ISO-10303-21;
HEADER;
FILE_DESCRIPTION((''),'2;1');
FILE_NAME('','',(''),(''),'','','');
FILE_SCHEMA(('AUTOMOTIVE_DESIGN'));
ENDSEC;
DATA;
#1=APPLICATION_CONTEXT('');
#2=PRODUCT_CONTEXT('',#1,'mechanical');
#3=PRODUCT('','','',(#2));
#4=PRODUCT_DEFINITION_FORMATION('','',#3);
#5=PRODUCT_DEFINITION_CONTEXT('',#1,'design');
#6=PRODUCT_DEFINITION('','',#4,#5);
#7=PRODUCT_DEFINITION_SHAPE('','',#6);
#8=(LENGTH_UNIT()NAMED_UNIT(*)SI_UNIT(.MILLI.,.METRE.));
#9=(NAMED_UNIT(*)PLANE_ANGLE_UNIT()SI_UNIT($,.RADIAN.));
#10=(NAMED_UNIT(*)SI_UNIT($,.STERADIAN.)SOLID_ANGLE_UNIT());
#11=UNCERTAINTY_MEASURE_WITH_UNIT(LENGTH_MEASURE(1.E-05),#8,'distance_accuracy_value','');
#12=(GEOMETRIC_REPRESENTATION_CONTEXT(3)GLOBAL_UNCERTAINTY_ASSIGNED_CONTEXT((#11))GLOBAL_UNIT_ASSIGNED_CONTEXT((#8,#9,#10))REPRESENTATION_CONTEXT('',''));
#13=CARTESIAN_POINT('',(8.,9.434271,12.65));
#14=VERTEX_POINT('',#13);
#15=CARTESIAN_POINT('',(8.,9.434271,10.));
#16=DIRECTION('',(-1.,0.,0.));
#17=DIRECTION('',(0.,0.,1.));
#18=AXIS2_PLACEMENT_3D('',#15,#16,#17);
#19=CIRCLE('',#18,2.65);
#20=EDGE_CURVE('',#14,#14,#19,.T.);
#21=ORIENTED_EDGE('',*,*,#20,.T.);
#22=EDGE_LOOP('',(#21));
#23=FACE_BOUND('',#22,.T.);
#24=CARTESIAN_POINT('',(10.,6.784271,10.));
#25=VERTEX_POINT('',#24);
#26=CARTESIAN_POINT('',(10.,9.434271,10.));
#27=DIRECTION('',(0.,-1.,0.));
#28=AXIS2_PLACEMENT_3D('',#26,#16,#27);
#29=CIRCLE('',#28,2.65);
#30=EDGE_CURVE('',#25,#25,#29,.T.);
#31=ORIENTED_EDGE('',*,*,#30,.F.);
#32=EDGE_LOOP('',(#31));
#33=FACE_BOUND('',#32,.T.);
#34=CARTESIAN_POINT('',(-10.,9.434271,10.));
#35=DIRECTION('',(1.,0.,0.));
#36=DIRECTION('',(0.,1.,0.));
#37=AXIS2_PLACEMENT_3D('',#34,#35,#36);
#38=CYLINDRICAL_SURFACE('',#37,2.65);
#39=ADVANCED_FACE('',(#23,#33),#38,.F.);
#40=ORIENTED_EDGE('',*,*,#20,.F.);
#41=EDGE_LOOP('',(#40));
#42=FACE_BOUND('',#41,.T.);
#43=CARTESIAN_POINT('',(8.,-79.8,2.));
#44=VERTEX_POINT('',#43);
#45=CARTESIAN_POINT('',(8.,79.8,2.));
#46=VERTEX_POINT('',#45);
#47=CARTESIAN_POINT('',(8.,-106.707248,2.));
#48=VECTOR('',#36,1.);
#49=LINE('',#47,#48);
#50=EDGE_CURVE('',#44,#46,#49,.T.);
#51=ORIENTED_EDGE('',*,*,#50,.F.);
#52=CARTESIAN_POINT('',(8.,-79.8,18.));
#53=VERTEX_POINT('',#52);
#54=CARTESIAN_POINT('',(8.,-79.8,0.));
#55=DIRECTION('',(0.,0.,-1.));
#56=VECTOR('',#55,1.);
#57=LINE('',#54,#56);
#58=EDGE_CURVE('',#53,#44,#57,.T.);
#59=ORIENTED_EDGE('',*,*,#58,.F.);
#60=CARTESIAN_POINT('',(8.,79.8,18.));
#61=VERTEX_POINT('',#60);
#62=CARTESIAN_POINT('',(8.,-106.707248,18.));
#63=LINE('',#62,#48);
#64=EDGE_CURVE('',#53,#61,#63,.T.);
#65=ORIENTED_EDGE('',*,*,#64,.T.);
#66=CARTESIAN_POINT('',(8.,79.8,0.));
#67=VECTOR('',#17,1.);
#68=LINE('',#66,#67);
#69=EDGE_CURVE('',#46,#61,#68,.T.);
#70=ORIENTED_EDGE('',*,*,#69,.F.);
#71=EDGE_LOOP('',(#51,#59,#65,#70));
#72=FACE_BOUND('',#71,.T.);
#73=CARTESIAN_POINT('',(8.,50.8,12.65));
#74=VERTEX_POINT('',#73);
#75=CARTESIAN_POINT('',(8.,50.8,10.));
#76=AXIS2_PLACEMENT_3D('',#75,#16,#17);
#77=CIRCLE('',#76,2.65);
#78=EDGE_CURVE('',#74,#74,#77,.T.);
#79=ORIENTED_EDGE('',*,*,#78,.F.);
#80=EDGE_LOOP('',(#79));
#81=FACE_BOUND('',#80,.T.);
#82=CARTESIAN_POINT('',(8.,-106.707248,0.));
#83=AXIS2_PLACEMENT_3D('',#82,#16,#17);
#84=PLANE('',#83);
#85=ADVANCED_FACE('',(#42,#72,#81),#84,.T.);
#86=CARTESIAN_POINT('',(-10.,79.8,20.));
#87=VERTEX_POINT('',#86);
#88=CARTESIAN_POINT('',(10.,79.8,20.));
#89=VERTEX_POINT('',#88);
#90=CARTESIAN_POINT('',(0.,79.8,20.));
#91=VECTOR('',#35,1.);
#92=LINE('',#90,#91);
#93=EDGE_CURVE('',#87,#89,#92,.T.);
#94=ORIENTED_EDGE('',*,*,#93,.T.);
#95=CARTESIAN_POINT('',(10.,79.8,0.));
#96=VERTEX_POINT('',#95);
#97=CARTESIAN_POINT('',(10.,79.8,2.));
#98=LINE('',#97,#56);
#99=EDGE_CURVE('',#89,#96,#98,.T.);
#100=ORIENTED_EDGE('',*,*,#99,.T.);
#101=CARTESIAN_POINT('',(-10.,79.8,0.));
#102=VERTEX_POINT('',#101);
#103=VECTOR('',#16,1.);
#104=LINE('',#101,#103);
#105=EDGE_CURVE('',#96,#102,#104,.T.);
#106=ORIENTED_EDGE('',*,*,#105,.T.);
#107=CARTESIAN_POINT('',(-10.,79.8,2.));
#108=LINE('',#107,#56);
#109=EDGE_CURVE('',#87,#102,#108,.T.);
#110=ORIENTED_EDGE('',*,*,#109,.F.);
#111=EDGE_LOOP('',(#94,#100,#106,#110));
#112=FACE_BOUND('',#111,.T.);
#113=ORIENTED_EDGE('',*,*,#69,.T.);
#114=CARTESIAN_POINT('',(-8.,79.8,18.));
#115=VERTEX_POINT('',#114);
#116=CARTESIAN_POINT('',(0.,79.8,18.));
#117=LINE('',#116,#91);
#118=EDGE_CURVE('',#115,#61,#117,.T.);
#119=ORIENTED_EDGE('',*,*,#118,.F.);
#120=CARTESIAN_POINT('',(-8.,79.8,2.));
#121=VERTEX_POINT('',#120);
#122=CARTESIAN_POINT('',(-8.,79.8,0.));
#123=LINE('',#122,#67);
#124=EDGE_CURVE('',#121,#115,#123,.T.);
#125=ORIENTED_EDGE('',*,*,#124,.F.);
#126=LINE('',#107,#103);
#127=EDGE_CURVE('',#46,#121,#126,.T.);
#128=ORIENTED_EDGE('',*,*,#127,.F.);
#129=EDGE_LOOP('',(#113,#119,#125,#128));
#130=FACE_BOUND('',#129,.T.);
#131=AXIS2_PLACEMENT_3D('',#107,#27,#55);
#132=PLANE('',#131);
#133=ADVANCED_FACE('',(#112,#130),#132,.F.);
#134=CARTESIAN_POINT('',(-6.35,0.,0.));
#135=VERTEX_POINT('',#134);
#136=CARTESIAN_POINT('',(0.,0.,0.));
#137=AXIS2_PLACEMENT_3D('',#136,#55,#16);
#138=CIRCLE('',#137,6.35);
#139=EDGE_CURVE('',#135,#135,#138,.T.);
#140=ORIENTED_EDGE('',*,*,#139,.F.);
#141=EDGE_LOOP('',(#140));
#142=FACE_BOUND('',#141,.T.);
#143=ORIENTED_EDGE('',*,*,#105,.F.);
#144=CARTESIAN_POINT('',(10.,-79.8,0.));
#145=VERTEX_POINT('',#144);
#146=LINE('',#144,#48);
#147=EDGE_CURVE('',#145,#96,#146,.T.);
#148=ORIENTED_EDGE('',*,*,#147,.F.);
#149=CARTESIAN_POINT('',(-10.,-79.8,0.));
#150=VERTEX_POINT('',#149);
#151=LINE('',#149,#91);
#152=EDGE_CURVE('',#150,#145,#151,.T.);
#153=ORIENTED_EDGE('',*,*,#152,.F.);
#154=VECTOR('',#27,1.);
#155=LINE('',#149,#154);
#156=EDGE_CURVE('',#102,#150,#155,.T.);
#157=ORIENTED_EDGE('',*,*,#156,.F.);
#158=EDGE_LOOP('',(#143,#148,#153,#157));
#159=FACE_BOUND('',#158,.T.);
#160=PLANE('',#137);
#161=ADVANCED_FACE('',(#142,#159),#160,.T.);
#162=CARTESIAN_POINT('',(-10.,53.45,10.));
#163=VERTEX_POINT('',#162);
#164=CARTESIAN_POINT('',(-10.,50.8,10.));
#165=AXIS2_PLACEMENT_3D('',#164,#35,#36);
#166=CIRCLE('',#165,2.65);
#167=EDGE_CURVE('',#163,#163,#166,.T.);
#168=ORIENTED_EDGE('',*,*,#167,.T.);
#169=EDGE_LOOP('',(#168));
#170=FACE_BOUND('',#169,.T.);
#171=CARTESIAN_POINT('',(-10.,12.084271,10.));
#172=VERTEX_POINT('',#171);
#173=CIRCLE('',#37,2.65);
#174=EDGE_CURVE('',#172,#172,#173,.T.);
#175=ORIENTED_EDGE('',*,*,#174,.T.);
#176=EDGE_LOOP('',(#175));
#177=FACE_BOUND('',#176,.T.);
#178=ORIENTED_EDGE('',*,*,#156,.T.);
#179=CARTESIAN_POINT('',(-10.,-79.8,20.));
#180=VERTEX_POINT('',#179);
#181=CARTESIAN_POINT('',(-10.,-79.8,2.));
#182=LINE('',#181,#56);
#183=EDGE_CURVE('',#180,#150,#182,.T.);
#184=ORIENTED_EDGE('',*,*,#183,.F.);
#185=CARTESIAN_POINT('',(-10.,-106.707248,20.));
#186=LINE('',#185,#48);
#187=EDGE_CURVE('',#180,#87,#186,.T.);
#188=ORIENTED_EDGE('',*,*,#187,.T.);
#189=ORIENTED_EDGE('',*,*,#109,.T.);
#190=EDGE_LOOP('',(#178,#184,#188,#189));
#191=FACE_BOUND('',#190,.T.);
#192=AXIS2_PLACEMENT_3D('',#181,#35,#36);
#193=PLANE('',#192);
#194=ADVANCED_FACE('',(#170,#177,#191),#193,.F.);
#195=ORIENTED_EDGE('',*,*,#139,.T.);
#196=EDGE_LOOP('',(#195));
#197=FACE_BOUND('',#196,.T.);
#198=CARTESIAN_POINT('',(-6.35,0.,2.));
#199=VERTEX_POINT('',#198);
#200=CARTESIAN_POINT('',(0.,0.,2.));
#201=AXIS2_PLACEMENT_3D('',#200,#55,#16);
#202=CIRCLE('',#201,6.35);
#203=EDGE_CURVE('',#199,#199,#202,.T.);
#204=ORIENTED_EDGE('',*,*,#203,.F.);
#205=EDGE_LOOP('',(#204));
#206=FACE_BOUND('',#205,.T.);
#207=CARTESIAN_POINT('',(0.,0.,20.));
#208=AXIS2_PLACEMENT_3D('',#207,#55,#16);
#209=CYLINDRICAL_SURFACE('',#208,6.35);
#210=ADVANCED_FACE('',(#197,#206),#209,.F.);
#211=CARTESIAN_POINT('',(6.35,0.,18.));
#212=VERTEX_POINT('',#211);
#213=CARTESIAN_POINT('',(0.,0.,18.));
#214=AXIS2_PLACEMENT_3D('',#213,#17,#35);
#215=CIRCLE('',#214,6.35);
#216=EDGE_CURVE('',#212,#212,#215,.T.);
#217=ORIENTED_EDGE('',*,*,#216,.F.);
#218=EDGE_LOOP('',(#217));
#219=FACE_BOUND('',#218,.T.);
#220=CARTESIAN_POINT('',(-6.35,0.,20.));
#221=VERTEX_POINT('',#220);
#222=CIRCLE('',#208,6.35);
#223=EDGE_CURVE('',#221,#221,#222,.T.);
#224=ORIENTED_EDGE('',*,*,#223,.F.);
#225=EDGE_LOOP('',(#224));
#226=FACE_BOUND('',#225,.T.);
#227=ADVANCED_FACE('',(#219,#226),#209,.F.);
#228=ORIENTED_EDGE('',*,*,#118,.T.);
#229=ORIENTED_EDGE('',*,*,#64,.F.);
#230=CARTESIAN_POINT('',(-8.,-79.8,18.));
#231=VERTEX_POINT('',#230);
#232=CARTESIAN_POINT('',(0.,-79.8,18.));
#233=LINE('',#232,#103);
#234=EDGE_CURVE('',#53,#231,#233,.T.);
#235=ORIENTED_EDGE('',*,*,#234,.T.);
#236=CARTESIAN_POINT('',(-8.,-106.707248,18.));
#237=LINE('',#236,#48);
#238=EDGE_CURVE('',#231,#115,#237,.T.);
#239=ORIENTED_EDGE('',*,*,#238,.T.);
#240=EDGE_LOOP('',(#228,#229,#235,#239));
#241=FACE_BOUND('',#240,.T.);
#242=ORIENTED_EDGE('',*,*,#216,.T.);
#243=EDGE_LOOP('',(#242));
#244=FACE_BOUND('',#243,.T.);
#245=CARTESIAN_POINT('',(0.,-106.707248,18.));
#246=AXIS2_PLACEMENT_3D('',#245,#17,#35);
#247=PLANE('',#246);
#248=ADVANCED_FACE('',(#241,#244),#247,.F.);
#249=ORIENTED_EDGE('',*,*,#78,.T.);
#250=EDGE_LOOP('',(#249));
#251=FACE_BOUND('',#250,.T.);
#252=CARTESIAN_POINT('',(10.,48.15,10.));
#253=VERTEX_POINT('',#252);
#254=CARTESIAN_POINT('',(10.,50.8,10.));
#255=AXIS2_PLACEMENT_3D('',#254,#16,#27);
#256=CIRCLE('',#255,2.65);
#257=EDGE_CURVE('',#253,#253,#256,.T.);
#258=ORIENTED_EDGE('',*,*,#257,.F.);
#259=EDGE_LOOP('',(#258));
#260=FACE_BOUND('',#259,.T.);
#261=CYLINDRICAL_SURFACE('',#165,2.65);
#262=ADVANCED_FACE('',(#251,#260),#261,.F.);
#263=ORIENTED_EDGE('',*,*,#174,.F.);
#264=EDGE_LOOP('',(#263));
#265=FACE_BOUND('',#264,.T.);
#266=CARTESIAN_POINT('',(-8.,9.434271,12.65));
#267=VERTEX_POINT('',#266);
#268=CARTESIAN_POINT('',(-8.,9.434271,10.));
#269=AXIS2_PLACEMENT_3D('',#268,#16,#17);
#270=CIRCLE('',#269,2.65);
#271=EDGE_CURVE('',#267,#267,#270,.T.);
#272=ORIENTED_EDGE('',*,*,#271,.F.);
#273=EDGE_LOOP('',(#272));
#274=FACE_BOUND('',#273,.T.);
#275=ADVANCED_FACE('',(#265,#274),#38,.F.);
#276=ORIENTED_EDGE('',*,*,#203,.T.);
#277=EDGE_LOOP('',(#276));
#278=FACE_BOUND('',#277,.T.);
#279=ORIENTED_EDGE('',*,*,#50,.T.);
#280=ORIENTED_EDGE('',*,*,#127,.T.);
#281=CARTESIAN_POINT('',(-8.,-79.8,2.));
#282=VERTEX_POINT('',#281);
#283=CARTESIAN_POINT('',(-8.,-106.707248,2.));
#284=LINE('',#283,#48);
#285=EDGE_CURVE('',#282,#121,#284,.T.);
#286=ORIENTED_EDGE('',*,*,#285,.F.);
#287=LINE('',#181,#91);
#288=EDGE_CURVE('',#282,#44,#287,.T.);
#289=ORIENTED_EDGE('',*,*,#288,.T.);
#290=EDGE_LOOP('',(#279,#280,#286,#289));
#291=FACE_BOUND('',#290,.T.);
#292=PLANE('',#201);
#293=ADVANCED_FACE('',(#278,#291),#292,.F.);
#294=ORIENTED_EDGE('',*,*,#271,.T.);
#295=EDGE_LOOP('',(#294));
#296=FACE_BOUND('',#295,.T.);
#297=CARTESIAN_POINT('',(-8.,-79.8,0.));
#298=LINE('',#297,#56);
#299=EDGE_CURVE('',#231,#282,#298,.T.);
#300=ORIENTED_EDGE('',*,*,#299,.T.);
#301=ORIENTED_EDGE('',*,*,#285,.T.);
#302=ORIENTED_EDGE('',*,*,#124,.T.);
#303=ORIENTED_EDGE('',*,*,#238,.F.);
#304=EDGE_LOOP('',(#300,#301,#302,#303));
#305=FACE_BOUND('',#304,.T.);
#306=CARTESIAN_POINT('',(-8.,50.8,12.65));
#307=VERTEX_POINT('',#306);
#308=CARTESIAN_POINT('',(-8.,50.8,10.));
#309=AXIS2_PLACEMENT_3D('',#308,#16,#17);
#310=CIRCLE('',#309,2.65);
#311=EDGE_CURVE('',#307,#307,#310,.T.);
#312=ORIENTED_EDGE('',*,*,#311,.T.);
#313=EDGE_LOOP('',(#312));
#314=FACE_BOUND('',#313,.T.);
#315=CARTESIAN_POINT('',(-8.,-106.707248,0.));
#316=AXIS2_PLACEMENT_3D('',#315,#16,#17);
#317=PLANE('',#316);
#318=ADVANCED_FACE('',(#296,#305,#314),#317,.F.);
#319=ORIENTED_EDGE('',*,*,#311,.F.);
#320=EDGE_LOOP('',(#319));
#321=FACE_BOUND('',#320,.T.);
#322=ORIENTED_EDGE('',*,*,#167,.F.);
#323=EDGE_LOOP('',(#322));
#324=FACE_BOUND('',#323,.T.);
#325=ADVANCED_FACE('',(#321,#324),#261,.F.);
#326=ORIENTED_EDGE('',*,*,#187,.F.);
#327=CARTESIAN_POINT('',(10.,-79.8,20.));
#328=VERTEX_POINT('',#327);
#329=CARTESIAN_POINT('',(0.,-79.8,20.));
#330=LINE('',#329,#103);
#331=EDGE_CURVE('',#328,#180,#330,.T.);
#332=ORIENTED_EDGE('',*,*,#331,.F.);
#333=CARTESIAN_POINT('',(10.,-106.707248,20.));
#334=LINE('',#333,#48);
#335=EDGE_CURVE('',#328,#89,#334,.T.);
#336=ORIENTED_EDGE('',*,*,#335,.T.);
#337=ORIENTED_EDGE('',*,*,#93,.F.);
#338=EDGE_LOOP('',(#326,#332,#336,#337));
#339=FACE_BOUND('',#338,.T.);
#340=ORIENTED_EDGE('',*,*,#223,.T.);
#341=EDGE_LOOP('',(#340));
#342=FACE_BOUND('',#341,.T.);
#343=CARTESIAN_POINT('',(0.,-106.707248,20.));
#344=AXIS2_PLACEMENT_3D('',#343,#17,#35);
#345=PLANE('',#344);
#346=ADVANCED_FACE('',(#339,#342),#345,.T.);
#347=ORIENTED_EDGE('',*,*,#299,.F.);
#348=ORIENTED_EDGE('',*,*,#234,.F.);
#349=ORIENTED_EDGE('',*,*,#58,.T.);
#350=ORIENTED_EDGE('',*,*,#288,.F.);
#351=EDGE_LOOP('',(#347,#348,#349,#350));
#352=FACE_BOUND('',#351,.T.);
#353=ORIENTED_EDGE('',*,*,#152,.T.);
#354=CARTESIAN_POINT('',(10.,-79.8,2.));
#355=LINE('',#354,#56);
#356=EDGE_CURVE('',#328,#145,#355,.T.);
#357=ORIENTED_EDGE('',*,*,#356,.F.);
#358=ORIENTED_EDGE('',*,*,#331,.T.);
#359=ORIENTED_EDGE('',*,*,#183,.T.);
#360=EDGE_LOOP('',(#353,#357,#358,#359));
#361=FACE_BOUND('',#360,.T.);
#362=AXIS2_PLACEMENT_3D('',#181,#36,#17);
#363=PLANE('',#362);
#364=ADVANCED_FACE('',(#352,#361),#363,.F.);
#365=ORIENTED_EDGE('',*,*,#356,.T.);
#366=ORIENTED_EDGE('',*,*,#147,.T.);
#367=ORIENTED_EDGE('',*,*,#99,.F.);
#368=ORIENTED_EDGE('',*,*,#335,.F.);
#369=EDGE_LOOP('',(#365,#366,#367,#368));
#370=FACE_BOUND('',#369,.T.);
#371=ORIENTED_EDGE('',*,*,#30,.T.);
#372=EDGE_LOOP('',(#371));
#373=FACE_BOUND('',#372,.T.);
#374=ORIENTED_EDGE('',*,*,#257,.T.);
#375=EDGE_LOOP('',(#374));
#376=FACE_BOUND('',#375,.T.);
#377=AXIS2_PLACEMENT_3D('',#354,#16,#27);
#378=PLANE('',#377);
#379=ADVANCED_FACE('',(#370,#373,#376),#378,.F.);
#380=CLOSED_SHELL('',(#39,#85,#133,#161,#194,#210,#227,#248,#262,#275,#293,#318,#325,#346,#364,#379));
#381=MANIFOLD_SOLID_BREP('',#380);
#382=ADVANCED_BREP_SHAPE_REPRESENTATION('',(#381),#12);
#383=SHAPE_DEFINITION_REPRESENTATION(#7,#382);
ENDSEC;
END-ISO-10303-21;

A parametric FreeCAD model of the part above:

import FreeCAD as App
import Part
import Sketcher

V = App.Vector

doc = App.newDocument("Part")
body = doc.addObject("PartDesign::Body", "Body")

sketch1 = doc.addObject("Sketcher::SketchObject", "Sketch")
body.addObject(sketch1)
sketch1.AttachmentSupport = (doc.XY_Plane, [""])
sketch1.MapMode = "FlatFace"
sketch1.addGeometry(Part.LineSegment(V(-10, 80, 0), V(-10, -80, 0)), False)
sketch1.addGeometry(Part.LineSegment(V(-10, -80, 0), V(10, -80, 0)), False)
sketch1.addGeometry(Part.LineSegment(V(10, -80, 0), V(10, 80, 0)), False)
sketch1.addGeometry(Part.LineSegment(V(10, 80, 0), V(-10, 80, 0)), False)
sketch1.addConstraint(Sketcher.Constraint("Coincident", 0, 2, 1, 1))
sketch1.addConstraint(Sketcher.Constraint("Coincident", 1, 2, 2, 1))
sketch1.addConstraint(Sketcher.Constraint("Coincident", 2, 2, 3, 1))
sketch1.addConstraint(Sketcher.Constraint("Coincident", 3, 2, 0, 1))
sketch1.addConstraint(Sketcher.Constraint("Vertical", 0))
sketch1.addConstraint(Sketcher.Constraint("Horizontal", 1))
sketch1.addConstraint(Sketcher.Constraint("Vertical", 2))
sketch1.addConstraint(Sketcher.Constraint("Horizontal", 3))
sketch1.addConstraint(Sketcher.Constraint("Symmetric", 0, 2, 2, 2, -1, 1))
sketch1.addConstraint(Sketcher.Constraint("DistanceX", 1, 1, 1, 2, 20.0))
sketch1.addConstraint(Sketcher.Constraint("DistanceY", 0, 2, 0, 1, 159.6))
pad1 = doc.addObject("PartDesign::Pad", "Pad")
body.addObject(pad1)
pad1.Profile = sketch1
pad1.Length = 2

sketch2 = doc.addObject("Sketcher::SketchObject", "Sketch001")
body.addObject(sketch2)
sketch2.AttachmentSupport = (doc.XZ_Plane, [""])
sketch2.MapMode = "FlatFace"
sketch2.AttachmentOffset = App.Placement(V(0, 0, -79.8), App.Rotation())
sketch2.addGeometry(Part.LineSegment(V(-8, 2, 0), V(-10, 2, 0)), False)
sketch2.addGeometry(Part.LineSegment(V(-10, 2, 0), V(-10, 20, 0)), False)
sketch2.addGeometry(Part.LineSegment(V(-10, 20, 0), V(10, 20, 0)), False)
sketch2.addGeometry(Part.LineSegment(V(10, 20, 0), V(10, 2, 0)), False)
sketch2.addGeometry(Part.LineSegment(V(10, 2, 0), V(8, 2, 0)), False)
sketch2.addGeometry(Part.LineSegment(V(8, 2, 0), V(8, 18, 0)), False)
sketch2.addGeometry(Part.LineSegment(V(8, 18, 0), V(-8, 18, 0)), False)
sketch2.addGeometry(Part.LineSegment(V(-8, 18, 0), V(-8, 2, 0)), False)
sketch2.addConstraint(Sketcher.Constraint("Coincident", 0, 2, 1, 1))
sketch2.addConstraint(Sketcher.Constraint("Coincident", 1, 2, 2, 1))
sketch2.addConstraint(Sketcher.Constraint("Coincident", 2, 2, 3, 1))
sketch2.addConstraint(Sketcher.Constraint("Coincident", 3, 2, 4, 1))
sketch2.addConstraint(Sketcher.Constraint("Coincident", 4, 2, 5, 1))
sketch2.addConstraint(Sketcher.Constraint("Coincident", 5, 2, 6, 1))
sketch2.addConstraint(Sketcher.Constraint("Coincident", 6, 2, 7, 1))
sketch2.addConstraint(Sketcher.Constraint("Coincident", 7, 2, 0, 1))
sketch2.addConstraint(Sketcher.Constraint("Horizontal", 0))
sketch2.addConstraint(Sketcher.Constraint("Vertical", 1))
sketch2.addConstraint(Sketcher.Constraint("Horizontal", 2))
sketch2.addConstraint(Sketcher.Constraint("Vertical", 3))
sketch2.addConstraint(Sketcher.Constraint("Horizontal", 4))
sketch2.addConstraint(Sketcher.Constraint("Vertical", 5))
sketch2.addConstraint(Sketcher.Constraint("Horizontal", 6))
sketch2.addConstraint(Sketcher.Constraint("Vertical", 7))
sketch2.addConstraint(Sketcher.Constraint("Symmetric", 0, 2, 3, 2, -2))
sketch2.addConstraint(Sketcher.Constraint("Equal", 0, 4))
sketch2.addConstraint(Sketcher.Constraint("Equal", 6, 5))
sketch2.addConstraint(Sketcher.Constraint("DistanceX", 0, 2, 0, 1, 2.0))
sketch2.addConstraint(Sketcher.Constraint("DistanceX", 2, 1, 2, 2, 20.0))
sketch2.addConstraint(Sketcher.Constraint("DistanceY", 1, 1, 1, 2, 18.0))
sketch2.addConstraint(Sketcher.Constraint("DistanceY", -1, 1, 0, 2, 2.0))
pad2 = doc.addObject("PartDesign::Pad", "Pad001")
body.addObject(pad2)
pad2.Profile = sketch2
pad2.Length = 159.6

sketch3 = doc.addObject("Sketcher::SketchObject", "Sketch002")
body.addObject(sketch3)
sketch3.AttachmentSupport = (doc.XY_Plane, [""])
sketch3.MapMode = "FlatFace"
sketch3.addGeometry(Part.Circle(V(0, 0, 0), V(0, 0, 1), 6), False)
sketch3.addConstraint(Sketcher.Constraint("Coincident", 0, 3, -1, 1))
sketch3.addConstraint(Sketcher.Constraint("Diameter", 0, 12.7))
pocket1 = doc.addObject("PartDesign::Pocket", "Pocket")
body.addObject(pocket1)
pocket1.Profile = sketch3
pocket1.Type = "ThroughAll"
pocket1.Midplane = True

sketch4 = doc.addObject("Sketcher::SketchObject", "Sketch003")
body.addObject(sketch4)
sketch4.AttachmentSupport = (doc.YZ_Plane, [""])
sketch4.MapMode = "FlatFace"
sketch4.AttachmentOffset = App.Placement(V(0, 0, 10), App.Rotation())
sketch4.addGeometry(Part.Circle(V(50.8, 10, 0), V(0, 0, 1), 2.6), False)
sketch4.addGeometry(Part.Circle(V(9.4, 10, 0), V(0, 0, 1), 2.6), False)
sketch4.addConstraint(Sketcher.Constraint("Equal", 0, 1))
sketch4.addConstraint(Sketcher.Constraint("Horizontal", 0, 3, 1, 3))
sketch4.addConstraint(Sketcher.Constraint("Diameter", 0, 5.3))
sketch4.addConstraint(Sketcher.Constraint("DistanceY", -1, 1, 0, 3, 10.0))
sketch4.addConstraint(Sketcher.Constraint("DistanceX", -1, 1, 0, 3, 50.8))
sketch4.addConstraint(Sketcher.Constraint("DistanceX", -1, 1, 1, 3, 9.434271))
pocket2 = doc.addObject("PartDesign::Pocket", "Pocket001")
body.addObject(pocket2)
pocket2.Profile = sketch4
pocket2.Type = "ThroughAll"
pocket2.Midplane = True

doc.recompute()
